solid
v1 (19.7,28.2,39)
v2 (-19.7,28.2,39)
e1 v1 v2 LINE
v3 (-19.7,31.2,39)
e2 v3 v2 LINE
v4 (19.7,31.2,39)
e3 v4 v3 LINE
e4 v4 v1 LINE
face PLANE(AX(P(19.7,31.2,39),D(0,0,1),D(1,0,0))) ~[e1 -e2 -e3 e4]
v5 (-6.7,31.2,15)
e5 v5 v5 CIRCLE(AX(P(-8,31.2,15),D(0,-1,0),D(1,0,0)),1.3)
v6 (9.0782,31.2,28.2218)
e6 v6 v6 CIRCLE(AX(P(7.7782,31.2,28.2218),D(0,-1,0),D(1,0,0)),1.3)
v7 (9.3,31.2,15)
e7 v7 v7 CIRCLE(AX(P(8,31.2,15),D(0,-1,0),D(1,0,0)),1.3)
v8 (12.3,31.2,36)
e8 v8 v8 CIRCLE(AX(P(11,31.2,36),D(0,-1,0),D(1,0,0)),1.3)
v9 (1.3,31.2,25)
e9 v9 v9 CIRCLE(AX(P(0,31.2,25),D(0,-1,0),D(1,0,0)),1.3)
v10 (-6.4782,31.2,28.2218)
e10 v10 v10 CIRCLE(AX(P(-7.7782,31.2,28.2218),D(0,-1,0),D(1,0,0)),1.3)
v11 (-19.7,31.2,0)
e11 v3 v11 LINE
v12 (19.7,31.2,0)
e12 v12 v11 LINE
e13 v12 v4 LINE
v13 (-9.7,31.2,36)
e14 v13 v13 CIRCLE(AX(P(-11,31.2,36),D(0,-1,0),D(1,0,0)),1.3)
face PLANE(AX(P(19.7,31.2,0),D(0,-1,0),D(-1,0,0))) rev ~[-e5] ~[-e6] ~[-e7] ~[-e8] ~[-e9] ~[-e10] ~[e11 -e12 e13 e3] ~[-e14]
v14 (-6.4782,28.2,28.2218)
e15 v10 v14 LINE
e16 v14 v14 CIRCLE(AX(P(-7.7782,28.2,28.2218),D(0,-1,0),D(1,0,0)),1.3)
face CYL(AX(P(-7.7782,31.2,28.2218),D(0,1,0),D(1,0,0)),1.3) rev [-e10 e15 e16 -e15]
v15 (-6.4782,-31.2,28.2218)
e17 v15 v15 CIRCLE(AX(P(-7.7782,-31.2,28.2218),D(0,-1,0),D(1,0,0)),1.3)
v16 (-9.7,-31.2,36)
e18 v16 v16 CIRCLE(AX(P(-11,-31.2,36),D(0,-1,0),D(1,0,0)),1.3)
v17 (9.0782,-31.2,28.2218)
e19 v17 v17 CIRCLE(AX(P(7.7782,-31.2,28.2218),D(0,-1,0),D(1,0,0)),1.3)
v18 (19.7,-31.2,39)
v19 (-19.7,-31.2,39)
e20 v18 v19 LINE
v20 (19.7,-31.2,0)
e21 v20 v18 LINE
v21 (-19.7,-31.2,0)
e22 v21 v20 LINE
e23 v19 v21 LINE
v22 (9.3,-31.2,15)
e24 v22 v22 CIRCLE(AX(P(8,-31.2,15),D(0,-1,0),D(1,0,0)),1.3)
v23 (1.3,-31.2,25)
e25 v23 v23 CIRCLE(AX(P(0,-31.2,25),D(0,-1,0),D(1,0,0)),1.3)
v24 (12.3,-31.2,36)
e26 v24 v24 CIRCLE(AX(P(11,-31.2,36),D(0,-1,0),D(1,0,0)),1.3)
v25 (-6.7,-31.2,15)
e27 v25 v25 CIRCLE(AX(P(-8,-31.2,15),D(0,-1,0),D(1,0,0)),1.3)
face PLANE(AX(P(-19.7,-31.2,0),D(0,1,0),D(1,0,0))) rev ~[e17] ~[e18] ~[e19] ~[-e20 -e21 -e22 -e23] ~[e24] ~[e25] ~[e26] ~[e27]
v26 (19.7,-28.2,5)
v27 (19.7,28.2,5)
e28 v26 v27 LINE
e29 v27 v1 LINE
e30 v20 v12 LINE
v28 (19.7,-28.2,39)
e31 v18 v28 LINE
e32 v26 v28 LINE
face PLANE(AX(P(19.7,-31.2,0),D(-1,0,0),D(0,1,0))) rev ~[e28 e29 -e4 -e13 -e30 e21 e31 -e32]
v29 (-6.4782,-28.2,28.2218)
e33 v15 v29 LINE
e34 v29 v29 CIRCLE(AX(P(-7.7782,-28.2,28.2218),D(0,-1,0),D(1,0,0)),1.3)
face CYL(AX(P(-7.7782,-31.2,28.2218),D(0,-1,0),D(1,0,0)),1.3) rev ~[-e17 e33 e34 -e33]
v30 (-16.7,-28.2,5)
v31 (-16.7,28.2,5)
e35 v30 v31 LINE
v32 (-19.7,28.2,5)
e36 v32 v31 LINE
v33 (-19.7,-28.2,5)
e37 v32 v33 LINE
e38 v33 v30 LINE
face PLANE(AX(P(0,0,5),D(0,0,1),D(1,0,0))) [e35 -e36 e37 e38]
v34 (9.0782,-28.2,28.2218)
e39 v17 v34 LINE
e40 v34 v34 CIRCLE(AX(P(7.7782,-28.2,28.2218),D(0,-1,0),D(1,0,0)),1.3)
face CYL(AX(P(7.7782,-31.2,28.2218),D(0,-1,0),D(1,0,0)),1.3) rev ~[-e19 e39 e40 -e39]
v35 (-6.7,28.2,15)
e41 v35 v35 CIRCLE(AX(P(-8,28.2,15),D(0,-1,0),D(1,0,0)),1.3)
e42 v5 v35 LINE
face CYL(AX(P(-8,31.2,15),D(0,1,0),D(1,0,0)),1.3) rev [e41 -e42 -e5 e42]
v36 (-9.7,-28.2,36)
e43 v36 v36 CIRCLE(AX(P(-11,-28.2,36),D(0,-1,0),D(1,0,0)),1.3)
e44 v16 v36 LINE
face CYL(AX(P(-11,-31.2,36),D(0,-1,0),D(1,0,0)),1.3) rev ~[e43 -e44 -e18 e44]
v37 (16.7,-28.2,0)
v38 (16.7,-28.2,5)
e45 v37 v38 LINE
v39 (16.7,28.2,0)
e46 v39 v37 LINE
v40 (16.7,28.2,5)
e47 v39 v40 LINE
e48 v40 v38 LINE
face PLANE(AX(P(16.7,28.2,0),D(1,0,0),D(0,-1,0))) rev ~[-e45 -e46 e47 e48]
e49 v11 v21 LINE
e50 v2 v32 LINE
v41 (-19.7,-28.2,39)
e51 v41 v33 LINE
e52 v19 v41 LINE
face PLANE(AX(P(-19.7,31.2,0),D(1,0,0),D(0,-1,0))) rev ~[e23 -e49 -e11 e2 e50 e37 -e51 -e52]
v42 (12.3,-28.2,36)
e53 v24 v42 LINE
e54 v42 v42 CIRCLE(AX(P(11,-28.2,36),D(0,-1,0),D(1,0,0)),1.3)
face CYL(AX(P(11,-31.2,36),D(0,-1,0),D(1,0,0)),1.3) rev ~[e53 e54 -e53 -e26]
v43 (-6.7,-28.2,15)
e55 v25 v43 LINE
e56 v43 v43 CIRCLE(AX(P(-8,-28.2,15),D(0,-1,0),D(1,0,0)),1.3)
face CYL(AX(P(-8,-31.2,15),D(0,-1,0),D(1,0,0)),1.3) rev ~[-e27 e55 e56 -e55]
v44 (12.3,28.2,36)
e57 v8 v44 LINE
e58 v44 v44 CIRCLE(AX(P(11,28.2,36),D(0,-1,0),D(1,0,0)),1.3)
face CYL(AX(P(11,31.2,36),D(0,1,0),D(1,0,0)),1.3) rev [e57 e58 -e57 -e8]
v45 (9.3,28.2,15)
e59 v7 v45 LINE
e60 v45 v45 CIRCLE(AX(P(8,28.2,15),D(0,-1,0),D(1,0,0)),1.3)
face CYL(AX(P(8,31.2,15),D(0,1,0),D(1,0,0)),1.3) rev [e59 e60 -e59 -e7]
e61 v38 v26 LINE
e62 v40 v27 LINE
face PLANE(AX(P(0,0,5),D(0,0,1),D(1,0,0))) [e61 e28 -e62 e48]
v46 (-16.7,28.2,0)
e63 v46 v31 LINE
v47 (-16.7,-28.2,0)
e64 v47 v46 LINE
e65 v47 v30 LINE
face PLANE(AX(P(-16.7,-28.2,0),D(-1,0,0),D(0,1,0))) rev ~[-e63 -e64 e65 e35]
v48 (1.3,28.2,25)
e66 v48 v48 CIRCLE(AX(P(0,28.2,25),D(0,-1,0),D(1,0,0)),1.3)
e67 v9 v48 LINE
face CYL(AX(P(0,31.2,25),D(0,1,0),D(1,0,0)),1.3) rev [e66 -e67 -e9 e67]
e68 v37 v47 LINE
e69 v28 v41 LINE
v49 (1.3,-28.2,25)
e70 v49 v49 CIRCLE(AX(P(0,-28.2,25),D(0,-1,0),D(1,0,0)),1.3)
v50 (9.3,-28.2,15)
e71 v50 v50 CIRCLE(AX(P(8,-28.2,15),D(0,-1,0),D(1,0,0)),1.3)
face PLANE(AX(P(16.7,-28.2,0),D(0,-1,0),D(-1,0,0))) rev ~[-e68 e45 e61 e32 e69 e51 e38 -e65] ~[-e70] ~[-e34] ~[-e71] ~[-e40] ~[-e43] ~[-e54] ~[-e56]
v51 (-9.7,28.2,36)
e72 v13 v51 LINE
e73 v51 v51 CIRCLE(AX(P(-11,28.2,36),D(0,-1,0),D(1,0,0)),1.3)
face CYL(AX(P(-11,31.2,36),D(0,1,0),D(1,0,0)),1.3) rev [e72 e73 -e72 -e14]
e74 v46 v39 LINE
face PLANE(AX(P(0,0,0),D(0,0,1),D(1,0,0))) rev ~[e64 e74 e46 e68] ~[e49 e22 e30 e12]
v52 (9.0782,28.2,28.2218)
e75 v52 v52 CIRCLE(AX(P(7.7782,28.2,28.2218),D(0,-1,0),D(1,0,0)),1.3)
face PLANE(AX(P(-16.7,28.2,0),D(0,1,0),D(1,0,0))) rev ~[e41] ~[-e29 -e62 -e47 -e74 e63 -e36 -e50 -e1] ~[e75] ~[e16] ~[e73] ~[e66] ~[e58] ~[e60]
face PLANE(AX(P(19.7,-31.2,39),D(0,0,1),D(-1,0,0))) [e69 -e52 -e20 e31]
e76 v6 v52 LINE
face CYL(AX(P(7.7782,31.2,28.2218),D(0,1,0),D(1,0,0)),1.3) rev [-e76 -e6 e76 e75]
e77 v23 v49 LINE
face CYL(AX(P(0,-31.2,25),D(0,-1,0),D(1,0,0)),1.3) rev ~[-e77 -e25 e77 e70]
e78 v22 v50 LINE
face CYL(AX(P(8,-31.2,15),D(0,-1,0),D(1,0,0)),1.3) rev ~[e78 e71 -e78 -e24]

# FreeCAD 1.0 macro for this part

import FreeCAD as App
import Part
import Sketcher

V = App.Vector

doc = App.newDocument("Part")
body = doc.addObject("PartDesign::Body", "Body")

# Sketch on XY plane
sketch1 = body.newObject("Sketcher::SketchObject", "Sketch")
sketch1.AttachmentSupport = (doc.getObject("XY_Plane"), [""])
sketch1.MapMode = "FlatFace"
sketch1.addGeometry([
    Part.LineSegment(V(-20, -31, 0), V(20, -31, 0)),  # 0
    Part.LineSegment(V(20, -31, 0), V(20, 31, 0)),  # 1
    Part.LineSegment(V(20, 31, 0), V(-20, 31, 0)),  # 2
    Part.LineSegment(V(-20, 31, 0), V(-20, -31, 0)),  # 3
    Part.LineSegment(V(-17, -28, 0), V(-17, 28, 0)),  # 4
    Part.LineSegment(V(-17, 28, 0), V(17, 28, 0)),  # 5
    Part.LineSegment(V(17, 28, 0), V(17, -28, 0)),  # 6
    Part.LineSegment(V(17, -28, 0), V(-17, -28, 0)),  # 7
], False)
sketch1.addConstraint([
    Sketcher.Constraint("Coincident", 0, 2, 1, 1),
    Sketcher.Constraint("Coincident", 1, 2, 2, 1),
    Sketcher.Constraint("Coincident", 2, 2, 3, 1),
    Sketcher.Constraint("Coincident", 3, 2, 0, 1),
    Sketcher.Constraint("Coincident", 4, 2, 5, 1),
    Sketcher.Constraint("Coincident", 5, 2, 6, 1),
    Sketcher.Constraint("Coincident", 6, 2, 7, 1),
    Sketcher.Constraint("Coincident", 7, 2, 4, 1),
    Sketcher.Constraint("Horizontal", 0),
    Sketcher.Constraint("Vertical", 1),
    Sketcher.Constraint("Horizontal", 2),
    Sketcher.Constraint("Vertical", 3),
    Sketcher.Constraint("Vertical", 4),
    Sketcher.Constraint("Horizontal", 5),
    Sketcher.Constraint("Vertical", 6),
    Sketcher.Constraint("Horizontal", 7),
    Sketcher.Constraint("Symmetric", 0, 2, 2, 2, -1, 1),
    Sketcher.Constraint("Symmetric", 4, 2, 6, 2, -1, 1),
    Sketcher.Constraint("DistanceX", 5, 1, 5, 2, 33.4),
    Sketcher.Constraint("DistanceY", 4, 1, 4, 2, 56.4),
    Sketcher.Constraint("DistanceX", 2, 2, 4, 2, 3.0),
    Sketcher.Constraint("DistanceY", 4, 2, 2, 2, 3.0),
])
pad1 = body.newObject("PartDesign::Pad", "Pad")
pad1.Profile = sketch1
pad1.Length = 5

# Sketch on XZ plane
sketch2 = body.newObject("Sketcher::SketchObject", "Sketch001")
sketch2.AttachmentSupport = (doc.getObject("XZ_Plane"), [""])
sketch2.MapMode = "FlatFace"
sketch2.AttachmentOffset = App.Placement(V(0, 0, 31.2), App.Rotation())
sketch2.addGeometry([
    Part.LineSegment(V(-19.7, 0, 0), V(19.7, 0, 0)),  # 0
    Part.LineSegment(V(19.7, 0, 0), V(19.7, 39, 0)),  # 1
    Part.LineSegment(V(19.7, 39, 0), V(-19.7, 39, 0)),  # 2
    Part.LineSegment(V(-19.7, 39, 0), V(-19.7, 0, 0)),  # 3
    Part.Circle(V(-8, 15, 0), V(0, 0, 1), 1.3),  # 4
    Part.Circle(V(8, 15, 0), V(0, 0, 1), 1.3),  # 5
    Part.Circle(V(-7.8, 28.2, 0), V(0, 0, 1), 1.3),  # 6
    Part.Circle(V(-11, 36, 0), V(0, 0, 1), 1.3),  # 7
    Part.Circle(V(0, 25, 0), V(0, 0, 1), 1.3),  # 8
    Part.Circle(V(7.8, 28.2, 0), V(0, 0, 1), 1.3),  # 9
    Part.Circle(V(11, 36, 0), V(0, 0, 1), 1.3),  # 10
], False)
sketch2.addConstraint([
    Sketcher.Constraint("Coincident", 0, 2, 1, 1),
    Sketcher.Constraint("Coincident", 1, 2, 2, 1),
    Sketcher.Constraint("Coincident", 2, 2, 3, 1),
    Sketcher.Constraint("Coincident", 3, 2, 0, 1),
    Sketcher.Constraint("Horizontal", 0),
    Sketcher.Constraint("Vertical", 1),
    Sketcher.Constraint("Horizontal", 2),
    Sketcher.Constraint("Vertical", 3),
    Sketcher.Constraint("Equal", 4, 5),
    Sketcher.Constraint("Equal", 5, 6),
    Sketcher.Constraint("Equal", 6, 7),
    Sketcher.Constraint("Equal", 7, 8),
    Sketcher.Constraint("Equal", 8, 9),
    Sketcher.Constraint("Equal", 9, 10),
    Sketcher.Constraint("Symmetric", 0, 2, 3, 2, -1, 1),
    Sketcher.Constraint("Symmetric", 4, 3, 5, 3, -2),
    Sketcher.Constraint("Symmetric", 6, 3, 9, 3, -2),
    Sketcher.Constraint("Symmetric", 7, 3, 10, 3, -2),
    Sketcher.Constraint("PointOnObject", 8, 3, -2),
    Sketcher.Constraint("Diameter", 4, 2.6),
    Sketcher.Constraint("DistanceY", 1, 1, 1, 2, 39.0),
    Sketcher.Constraint("DistanceX", 4, 3, -1, 1, 8.0),
    Sketcher.Constraint("DistanceX", 7, 3, 4, 3, 3.0),
    Sketcher.Constraint("DistanceY", 10, 3, 1, 2, 3.0),
    Sketcher.Constraint("DistanceY", 5, 3, 1, 2, 24.0),
    Sketcher.Constraint("DistanceX", 0, 1, 0, 2, 39.4),
    Sketcher.Constraint("DistanceY", -1, 1, 8, 3, 25.0),
    Sketcher.Constraint("DistanceX", 6, 3, -1, 1, 7.7782),
    Sketcher.Constraint("DistanceY", -1, 1, 6, 3, 28.2218),
])
pad2 = body.newObject("PartDesign::Pad", "Pad001")
pad2.Profile = sketch2
pad2.Length = 3
pad2.Reversed = True
doc.recompute()

mirrored = body.newObject("PartDesign::Mirrored", "Mirrored")
mirrored.TransformMode = "Transform body"
mirrored.MirrorPlane = (doc.getObject("XZ_Plane"), [""])
body.Tip = mirrored

doc.recompute()
